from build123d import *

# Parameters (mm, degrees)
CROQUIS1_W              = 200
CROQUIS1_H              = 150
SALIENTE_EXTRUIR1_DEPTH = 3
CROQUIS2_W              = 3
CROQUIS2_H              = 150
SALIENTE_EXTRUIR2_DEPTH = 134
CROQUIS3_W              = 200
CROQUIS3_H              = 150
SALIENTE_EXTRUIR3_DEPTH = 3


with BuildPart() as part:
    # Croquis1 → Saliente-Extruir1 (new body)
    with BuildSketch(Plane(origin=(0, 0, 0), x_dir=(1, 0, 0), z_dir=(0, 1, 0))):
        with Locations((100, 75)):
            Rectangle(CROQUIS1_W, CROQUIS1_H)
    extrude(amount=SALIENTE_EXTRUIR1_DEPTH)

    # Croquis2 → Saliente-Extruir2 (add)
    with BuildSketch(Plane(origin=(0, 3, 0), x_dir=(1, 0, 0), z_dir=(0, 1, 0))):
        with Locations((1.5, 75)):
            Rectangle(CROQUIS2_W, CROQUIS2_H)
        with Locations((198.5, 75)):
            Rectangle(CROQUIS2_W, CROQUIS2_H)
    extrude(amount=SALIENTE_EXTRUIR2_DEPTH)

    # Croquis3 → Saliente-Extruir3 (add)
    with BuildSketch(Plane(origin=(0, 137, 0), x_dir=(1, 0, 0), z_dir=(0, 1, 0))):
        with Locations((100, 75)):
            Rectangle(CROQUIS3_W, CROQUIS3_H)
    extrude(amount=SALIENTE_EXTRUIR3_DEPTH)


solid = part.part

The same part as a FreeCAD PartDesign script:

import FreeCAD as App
import Part
import Sketcher
from FreeCAD import Vector


def add_polygon(sketch, points):
    """Adds a closed chain of lines whose ends are joined by coincident constraints."""
    first, n = sketch.GeometryCount, len(points)
    for a, b in zip(points, points[1:] + points[:1]):
        sketch.addGeometry(Part.LineSegment(App.Vector(*a, 0), App.Vector(*b, 0)), False)
    for i in range(n):
        sketch.addConstraint(Sketcher.Constraint("Coincident", first + i, 2, first + (i + 1) % n, 1))

doc = App.newDocument("Part")
body = doc.addObject("PartDesign::Body", "Body")

# Sketch on XZ plane
sketch1 = body.newObject("Sketcher::SketchObject", "Sketch")
sketch1.AttachmentSupport = (doc.getObject("XZ_Plane"), [""])
sketch1.MapMode = "FlatFace"
add_polygon(sketch1, [(0, -150), (0, 0), (200, 0), (200, -150)])  # lines 0-3
sketch1.addConstraint([
    Sketcher.Constraint("Vertical", 0),
    Sketcher.Constraint("Horizontal", 1),
    Sketcher.Constraint("Vertical", 2),
    Sketcher.Constraint("Horizontal", 3),
    Sketcher.Constraint("Coincident", 0, 2, -1, 1),
    Sketcher.Constraint("DistanceX", 1, 1, 1, 2, 200.0),
    Sketcher.Constraint("DistanceY", 0, 1, 0, 2, 150.0),
])
pad1 = body.newObject("PartDesign::Pad", "Pad")
pad1.Profile = sketch1
pad1.Length = 3
pad1.Reversed = True

# Sketch on XZ plane
sketch2 = body.newObject("Sketcher::SketchObject", "Sketch001")
sketch2.AttachmentSupport = (doc.getObject("XZ_Plane"), [""])
sketch2.MapMode = "FlatFace"
sketch2.AttachmentOffset = App.Placement(Vector(0, 0, -3), App.Rotation())
add_polygon(sketch2, [(0, -150), (0, 0), (3, 0), (3, -150)])  # lines 0-3
add_polygon(sketch2, [(197, -150), (197, 0), (200, 0), (200, -150)])  # lines 4-7
sketch2.addConstraint([
    Sketcher.Constraint("Vertical", 0),
    Sketcher.Constraint("Horizontal", 1),
    Sketcher.Constraint("Vertical", 2),
    Sketcher.Constraint("Horizontal", 3),
    Sketcher.Constraint("Vertical", 4),
    Sketcher.Constraint("Horizontal", 5),
    Sketcher.Constraint("Vertical", 6),
    Sketcher.Constraint("Horizontal", 7),
    Sketcher.Constraint("Coincident", 0, 2, -1, 1),
    Sketcher.Constraint("PointOnObject", 4, 2, -1),
    Sketcher.Constraint("Horizontal", 3, 2, 6, 2),
    Sketcher.Constraint("Equal", 3, 5),
    Sketcher.Constraint("DistanceX", 1, 1, 1, 2, 3.0),
    Sketcher.Constraint("DistanceY", 0, 1, 0, 2, 150.0),
    Sketcher.Constraint("DistanceX", -1, 1, 4, 2, 197.0),
])
pad2 = body.newObject("PartDesign::Pad", "Pad001")
pad2.Profile = sketch2
pad2.Length = 134
pad2.Reversed = True

# Sketch on XZ plane
sketch3 = body.newObject("Sketcher::SketchObject", "Sketch002")
sketch3.AttachmentSupport = (doc.getObject("XZ_Plane"), [""])
sketch3.MapMode = "FlatFace"
sketch3.AttachmentOffset = App.Placement(Vector(0, 0, -137), App.Rotation())
add_polygon(sketch3, [(0, -150), (0, 0), (200, 0), (200, -150)])  # lines 0-3
sketch3.addConstraint([
    Sketcher.Constraint("Vertical", 0),
    Sketcher.Constraint("Horizontal", 1),
    Sketcher.Constraint("Vertical", 2),
    Sketcher.Constraint("Horizontal", 3),
    Sketcher.Constraint("Coincident", 0, 2, -1, 1),
    Sketcher.Constraint("DistanceX", 1, 1, 1, 2, 200.0),
    Sketcher.Constraint("DistanceY", 0, 1, 0, 2, 150.0),
])
pad3 = body.newObject("PartDesign::Pad", "Pad002")
pad3.Profile = sketch3
pad3.Length = 3
pad3.Reversed = True

doc.recompute()
